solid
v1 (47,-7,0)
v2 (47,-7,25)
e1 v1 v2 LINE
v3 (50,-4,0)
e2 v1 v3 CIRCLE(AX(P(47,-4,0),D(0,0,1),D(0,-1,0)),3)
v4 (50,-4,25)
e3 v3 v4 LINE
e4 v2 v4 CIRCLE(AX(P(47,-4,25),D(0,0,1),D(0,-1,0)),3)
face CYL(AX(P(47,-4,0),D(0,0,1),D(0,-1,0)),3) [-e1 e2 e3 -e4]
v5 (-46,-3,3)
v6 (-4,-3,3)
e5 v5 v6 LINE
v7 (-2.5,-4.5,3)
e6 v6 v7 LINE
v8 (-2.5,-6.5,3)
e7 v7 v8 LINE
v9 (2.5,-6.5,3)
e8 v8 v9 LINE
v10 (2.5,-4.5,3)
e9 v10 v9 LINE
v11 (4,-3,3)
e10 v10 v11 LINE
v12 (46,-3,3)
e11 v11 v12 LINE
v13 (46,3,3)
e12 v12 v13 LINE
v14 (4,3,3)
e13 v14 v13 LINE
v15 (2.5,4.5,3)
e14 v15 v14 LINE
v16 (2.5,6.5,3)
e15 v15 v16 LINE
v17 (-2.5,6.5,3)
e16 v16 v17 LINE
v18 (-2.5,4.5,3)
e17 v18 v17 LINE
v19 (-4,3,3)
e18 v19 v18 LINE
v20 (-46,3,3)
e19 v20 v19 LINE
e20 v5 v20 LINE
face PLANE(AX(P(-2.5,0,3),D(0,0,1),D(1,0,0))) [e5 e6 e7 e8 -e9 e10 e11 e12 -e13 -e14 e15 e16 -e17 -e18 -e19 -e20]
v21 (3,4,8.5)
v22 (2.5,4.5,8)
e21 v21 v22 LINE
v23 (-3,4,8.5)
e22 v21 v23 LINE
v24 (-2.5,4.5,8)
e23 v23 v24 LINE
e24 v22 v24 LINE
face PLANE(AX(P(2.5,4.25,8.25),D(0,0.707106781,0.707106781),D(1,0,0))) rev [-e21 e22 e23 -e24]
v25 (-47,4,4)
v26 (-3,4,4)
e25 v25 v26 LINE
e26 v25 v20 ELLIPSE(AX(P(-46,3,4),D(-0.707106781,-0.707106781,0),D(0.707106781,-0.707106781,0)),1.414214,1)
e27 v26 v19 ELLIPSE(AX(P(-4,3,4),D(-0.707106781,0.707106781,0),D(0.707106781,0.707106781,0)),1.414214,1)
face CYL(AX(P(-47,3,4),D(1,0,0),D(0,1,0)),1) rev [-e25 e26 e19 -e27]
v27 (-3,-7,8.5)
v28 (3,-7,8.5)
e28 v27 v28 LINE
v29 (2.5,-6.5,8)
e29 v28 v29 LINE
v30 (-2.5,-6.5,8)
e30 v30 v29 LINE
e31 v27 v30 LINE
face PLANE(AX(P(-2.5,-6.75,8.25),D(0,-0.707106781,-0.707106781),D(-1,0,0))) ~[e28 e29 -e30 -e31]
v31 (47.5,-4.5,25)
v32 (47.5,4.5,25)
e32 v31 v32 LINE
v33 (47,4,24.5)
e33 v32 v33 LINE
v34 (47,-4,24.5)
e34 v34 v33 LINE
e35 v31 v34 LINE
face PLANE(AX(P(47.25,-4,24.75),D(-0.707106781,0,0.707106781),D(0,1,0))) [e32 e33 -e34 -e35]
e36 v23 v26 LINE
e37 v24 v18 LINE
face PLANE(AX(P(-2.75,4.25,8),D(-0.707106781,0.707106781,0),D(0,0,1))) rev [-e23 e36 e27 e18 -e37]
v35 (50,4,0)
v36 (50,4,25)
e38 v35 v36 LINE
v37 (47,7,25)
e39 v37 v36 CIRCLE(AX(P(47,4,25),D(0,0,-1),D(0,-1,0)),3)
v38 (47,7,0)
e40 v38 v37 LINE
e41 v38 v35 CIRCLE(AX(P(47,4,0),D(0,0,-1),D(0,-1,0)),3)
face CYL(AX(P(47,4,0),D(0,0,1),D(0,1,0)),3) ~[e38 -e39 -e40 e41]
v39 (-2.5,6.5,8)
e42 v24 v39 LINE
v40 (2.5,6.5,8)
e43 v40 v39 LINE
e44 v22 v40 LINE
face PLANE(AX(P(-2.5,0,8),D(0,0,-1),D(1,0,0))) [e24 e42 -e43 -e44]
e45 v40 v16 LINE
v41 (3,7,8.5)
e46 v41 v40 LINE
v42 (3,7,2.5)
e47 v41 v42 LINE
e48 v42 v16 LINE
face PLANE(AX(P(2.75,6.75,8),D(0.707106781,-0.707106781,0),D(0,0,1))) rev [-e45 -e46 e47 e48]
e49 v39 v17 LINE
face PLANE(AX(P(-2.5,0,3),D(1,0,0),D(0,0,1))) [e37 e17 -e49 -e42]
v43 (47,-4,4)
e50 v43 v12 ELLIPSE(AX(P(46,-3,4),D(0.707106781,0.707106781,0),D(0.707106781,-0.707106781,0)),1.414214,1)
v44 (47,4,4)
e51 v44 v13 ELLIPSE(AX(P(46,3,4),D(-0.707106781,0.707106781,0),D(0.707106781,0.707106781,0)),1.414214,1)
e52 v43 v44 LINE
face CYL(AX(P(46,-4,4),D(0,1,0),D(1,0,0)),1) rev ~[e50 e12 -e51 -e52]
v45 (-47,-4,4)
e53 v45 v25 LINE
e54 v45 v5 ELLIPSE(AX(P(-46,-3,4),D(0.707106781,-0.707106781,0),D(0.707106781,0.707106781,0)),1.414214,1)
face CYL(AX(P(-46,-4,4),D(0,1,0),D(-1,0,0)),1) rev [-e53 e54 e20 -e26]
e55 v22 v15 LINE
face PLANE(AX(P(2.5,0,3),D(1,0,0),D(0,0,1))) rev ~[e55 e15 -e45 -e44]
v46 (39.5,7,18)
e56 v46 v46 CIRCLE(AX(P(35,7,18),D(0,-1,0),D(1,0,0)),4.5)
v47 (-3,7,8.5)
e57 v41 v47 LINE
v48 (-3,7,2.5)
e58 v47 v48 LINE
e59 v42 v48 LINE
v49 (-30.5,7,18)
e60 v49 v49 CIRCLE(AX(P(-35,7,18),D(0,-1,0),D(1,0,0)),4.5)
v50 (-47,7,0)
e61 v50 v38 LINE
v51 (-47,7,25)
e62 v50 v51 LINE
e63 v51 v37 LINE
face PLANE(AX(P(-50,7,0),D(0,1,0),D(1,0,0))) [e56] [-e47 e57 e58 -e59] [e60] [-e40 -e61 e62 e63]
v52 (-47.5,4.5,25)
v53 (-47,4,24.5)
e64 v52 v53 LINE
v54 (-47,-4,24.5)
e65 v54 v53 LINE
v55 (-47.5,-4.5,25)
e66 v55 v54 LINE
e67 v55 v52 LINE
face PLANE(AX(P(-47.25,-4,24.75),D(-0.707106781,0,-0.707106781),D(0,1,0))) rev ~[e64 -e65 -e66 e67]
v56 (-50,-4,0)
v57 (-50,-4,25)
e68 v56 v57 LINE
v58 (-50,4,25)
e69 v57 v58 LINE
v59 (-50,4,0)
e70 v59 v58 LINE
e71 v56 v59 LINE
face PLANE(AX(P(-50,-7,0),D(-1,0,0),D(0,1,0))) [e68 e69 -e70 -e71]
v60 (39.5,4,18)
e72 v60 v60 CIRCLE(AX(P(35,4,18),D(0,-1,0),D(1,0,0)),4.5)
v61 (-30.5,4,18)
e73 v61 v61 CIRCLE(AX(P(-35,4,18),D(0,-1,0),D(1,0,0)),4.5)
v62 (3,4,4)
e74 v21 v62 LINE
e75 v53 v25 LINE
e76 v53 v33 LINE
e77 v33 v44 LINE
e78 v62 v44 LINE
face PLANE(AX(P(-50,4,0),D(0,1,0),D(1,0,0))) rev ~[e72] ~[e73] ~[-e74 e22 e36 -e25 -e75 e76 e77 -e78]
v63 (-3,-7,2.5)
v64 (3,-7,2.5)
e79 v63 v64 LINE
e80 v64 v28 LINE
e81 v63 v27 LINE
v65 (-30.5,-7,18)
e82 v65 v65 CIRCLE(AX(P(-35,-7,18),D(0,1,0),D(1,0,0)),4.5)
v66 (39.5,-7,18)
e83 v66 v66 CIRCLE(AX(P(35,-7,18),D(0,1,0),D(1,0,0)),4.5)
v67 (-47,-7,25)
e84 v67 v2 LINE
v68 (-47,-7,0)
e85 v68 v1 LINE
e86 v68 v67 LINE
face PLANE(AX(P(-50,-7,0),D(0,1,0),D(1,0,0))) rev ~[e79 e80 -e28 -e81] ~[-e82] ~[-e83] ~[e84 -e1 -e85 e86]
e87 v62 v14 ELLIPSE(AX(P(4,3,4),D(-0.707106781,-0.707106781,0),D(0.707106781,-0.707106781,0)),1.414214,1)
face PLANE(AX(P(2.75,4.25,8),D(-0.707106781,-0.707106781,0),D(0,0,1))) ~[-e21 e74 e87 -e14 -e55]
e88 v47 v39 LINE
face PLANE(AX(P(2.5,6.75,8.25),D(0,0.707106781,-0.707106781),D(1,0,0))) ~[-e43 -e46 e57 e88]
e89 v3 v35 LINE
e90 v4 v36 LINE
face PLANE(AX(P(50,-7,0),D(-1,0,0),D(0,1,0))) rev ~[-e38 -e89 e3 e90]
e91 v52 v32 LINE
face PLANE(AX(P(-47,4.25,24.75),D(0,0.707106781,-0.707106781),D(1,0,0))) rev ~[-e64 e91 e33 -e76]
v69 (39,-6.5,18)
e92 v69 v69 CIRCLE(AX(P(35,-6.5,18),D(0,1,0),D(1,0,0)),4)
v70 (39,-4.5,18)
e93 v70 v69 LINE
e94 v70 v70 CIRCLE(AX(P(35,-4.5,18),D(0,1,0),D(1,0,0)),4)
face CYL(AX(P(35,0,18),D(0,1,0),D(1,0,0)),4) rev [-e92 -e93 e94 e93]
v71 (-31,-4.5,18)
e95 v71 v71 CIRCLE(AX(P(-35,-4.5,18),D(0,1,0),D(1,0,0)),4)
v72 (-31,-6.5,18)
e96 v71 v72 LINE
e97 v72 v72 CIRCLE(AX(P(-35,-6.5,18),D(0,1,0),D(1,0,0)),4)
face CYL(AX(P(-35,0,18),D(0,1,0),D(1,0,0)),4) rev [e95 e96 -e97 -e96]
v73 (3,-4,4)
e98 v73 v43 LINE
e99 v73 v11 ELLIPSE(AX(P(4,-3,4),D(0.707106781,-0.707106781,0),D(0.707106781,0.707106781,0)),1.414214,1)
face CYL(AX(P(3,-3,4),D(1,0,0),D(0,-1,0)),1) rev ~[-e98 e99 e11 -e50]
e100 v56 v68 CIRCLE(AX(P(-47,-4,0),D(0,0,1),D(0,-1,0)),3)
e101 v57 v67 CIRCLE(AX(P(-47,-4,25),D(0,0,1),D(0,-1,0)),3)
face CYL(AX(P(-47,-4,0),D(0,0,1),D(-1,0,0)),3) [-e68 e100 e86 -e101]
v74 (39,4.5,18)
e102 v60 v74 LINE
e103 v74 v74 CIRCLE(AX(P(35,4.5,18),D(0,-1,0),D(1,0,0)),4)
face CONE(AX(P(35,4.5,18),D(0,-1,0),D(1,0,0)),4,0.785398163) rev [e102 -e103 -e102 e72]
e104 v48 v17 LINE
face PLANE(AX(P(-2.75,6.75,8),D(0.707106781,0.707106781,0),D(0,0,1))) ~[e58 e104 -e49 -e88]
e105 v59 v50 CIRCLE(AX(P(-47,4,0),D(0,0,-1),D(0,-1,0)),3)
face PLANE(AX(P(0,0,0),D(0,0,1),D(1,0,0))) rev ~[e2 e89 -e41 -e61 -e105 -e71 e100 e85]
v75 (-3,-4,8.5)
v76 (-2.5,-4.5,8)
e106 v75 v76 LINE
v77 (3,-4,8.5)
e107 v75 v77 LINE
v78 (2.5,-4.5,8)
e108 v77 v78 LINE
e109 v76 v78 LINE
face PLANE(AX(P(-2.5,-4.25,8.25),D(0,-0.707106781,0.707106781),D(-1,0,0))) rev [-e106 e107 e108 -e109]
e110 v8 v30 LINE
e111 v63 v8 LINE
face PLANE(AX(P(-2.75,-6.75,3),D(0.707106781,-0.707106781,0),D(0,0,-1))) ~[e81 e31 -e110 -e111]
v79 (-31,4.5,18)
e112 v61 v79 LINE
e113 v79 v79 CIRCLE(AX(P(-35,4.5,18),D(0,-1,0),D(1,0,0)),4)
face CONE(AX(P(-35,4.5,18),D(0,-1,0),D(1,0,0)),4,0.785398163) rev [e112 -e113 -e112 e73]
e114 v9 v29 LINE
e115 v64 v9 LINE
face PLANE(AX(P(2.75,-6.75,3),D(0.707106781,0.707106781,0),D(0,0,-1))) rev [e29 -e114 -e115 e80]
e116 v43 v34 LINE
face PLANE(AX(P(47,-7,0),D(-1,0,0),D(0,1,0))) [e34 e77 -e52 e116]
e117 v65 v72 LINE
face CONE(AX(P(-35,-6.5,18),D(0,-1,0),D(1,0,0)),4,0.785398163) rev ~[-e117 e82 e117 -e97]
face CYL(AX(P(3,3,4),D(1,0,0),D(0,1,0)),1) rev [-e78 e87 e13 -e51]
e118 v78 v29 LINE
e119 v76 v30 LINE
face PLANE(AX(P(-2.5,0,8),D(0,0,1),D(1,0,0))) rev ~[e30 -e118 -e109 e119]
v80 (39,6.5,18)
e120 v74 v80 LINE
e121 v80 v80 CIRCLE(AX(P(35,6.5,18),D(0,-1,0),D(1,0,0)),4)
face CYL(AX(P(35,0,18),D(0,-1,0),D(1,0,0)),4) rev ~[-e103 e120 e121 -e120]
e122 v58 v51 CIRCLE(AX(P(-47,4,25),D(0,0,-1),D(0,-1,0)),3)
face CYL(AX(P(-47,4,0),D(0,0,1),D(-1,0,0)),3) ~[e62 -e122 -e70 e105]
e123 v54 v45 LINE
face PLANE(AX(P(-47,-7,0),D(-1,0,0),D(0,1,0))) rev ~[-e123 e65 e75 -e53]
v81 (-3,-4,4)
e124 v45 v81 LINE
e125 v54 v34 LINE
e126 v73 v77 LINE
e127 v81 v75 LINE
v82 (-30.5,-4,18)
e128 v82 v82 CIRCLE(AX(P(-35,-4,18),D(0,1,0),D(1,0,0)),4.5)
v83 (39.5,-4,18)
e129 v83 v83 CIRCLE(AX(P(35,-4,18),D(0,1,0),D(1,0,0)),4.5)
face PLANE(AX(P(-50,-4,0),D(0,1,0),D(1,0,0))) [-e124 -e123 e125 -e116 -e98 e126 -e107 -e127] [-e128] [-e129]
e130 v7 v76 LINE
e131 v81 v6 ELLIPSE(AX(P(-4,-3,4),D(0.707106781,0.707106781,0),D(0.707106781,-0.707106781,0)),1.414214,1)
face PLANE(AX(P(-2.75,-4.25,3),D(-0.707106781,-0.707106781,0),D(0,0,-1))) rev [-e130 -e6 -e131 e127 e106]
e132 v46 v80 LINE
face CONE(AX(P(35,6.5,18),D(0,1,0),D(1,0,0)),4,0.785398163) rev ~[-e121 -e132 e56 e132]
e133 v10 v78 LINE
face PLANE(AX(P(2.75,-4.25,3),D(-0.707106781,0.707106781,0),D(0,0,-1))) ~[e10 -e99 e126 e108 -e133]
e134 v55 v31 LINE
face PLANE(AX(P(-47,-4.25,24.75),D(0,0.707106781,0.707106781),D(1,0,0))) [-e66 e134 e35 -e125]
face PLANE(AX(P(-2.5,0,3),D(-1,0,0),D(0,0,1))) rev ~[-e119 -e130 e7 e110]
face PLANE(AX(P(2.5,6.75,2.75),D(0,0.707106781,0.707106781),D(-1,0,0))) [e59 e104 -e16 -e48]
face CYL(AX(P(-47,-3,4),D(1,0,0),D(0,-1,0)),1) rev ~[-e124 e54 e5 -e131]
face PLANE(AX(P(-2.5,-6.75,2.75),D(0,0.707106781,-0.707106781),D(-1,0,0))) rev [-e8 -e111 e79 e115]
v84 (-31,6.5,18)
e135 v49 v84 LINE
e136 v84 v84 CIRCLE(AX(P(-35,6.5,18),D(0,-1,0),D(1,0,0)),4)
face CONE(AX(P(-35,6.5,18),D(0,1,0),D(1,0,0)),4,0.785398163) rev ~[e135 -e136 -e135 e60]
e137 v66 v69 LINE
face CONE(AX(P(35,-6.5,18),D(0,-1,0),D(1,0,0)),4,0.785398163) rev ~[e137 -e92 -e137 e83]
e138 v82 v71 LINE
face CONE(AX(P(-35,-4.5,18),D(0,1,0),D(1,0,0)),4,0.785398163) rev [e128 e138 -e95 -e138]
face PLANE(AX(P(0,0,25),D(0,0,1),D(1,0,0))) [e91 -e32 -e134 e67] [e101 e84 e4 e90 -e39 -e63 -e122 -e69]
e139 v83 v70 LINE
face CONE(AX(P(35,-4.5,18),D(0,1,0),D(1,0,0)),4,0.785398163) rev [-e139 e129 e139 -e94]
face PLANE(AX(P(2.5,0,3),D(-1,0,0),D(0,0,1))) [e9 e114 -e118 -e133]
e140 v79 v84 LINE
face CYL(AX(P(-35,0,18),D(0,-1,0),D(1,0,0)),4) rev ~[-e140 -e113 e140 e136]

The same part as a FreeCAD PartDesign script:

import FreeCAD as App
import Part
import Sketcher
from FreeCAD import Vector
Q = App.Units.Quantity


def edges_at(feature, points):
    """Names of the edges that pass closest to the given points."""
    edges = feature.Shape.Edges
    near = lambda p: min(range(len(edges)), key=lambda i: edges[i].distToShape(Part.Vertex(*p))[0])
    return sorted({f"Edge{near(p) + 1}" for p in points})


def faces_at(feature, points):
    """Names of the faces that lie closest to the given points."""
    faces = feature.Shape.Faces
    near = lambda p: min(range(len(faces)), key=lambda i: faces[i].distToShape(Part.Vertex(*p))[0])
    return sorted({f"Face{near(p) + 1}" for p in points})

doc = App.newDocument("Part")
body = doc.addObject("PartDesign::Body", "Body")

# Sketch on XY plane
sketch1 = body.newObject("Sketcher::SketchObject", "Sketch")
sketch1.AttachmentSupport = (doc.getObject("XY_Plane"), [""])
sketch1.MapMode = "FlatFace"
sketch1.addGeometry(Part.LineSegment(Vector(-50, 7, 0), Vector(-50, -7, 0)), False)
sketch1.addGeometry(Part.LineSegment(Vector(-50, -7, 0), Vector(50, -7, 0)), False)
sketch1.addGeometry(Part.LineSegment(Vector(50, -7, 0), Vector(50, 7, 0)), False)
sketch1.addGeometry(Part.LineSegment(Vector(50, 7, 0), Vector(-50, 7, 0)), False)
sketch1.addConstraint(Sketcher.Constraint("Coincident", 0, 2, 1, 1))
sketch1.addConstraint(Sketcher.Constraint("Coincident", 1, 2, 2, 1))
sketch1.addConstraint(Sketcher.Constraint("Coincident", 2, 2, 3, 1))
sketch1.addConstraint(Sketcher.Constraint("Coincident", 3, 2, 0, 1))
sketch1.addConstraint(Sketcher.Constraint("Vertical", 0))
sketch1.addConstraint(Sketcher.Constraint("Horizontal", 1))
sketch1.addConstraint(Sketcher.Constraint("Vertical", 2))
sketch1.addConstraint(Sketcher.Constraint("Horizontal", 3))
sketch1.addConstraint(Sketcher.Constraint("Symmetric", 0, 2, 2, 2, -1, 1))
sketch1.addConstraint(Sketcher.Constraint("DistanceX", 1, 1, 1, 2, Q("100 mm")))
sketch1.addConstraint(Sketcher.Constraint("DistanceY", 0, 2, 0, 1, Q("14 mm")))
pad1 = body.newObject("PartDesign::Pad", "Pad")
pad1.Profile = sketch1
pad1.Length = 25
doc.recompute()

thickness = body.newObject("PartDesign::Thickness", "Thickness")
thickness.Base = (pad1, faces_at(pad1, [(0, 0, 25)]))
thickness.Value = 3
thickness.Reversed = True
thickness.Join = "Arc"

# Sketch on XZ plane
sketch2 = body.newObject("Sketcher::SketchObject", "Sketch001")
sketch2.AttachmentSupport = (doc.getObject("XZ_Plane"), [""])
sketch2.MapMode = "FlatFace"
sketch2.addGeometry(Part.Circle(Vector(-35, 18, 0), Vector(0, 0, 1), 4), False)
sketch2.addGeometry(Part.Circle(Vector(35, 18, 0), Vector(0, 0, 1), 4), False)
sketch2.addGeometry(Part.LineSegment(Vector(-2.5, 8, 0), Vector(-2.5, 3, 0)), False)
sketch2.addGeometry(Part.LineSegment(Vector(-2.5, 3, 0), Vector(2.5, 3, 0)), False)
sketch2.addGeometry(Part.LineSegment(Vector(2.5, 3, 0), Vector(2.5, 8, 0)), False)
sketch2.addGeometry(Part.LineSegment(Vector(2.5, 8, 0), Vector(-2.5, 8, 0)), False)
sketch2.addConstraint(Sketcher.Constraint("Coincident", 2, 2, 3, 1))
sketch2.addConstraint(Sketcher.Constraint("Coincident", 3, 2, 4, 1))
sketch2.addConstraint(Sketcher.Constraint("Coincident", 4, 2, 5, 1))
sketch2.addConstraint(Sketcher.Constraint("Coincident", 5, 2, 2, 1))
sketch2.addConstraint(Sketcher.Constraint("Vertical", 2))
sketch2.addConstraint(Sketcher.Constraint("Horizontal", 3))
sketch2.addConstraint(Sketcher.Constraint("Vertical", 4))
sketch2.addConstraint(Sketcher.Constraint("Horizontal", 5))
sketch2.addConstraint(Sketcher.Constraint("Equal", 0, 1))
sketch2.addConstraint(Sketcher.Constraint("Symmetric", 0, 3, 1, 3, -2))
sketch2.addConstraint(Sketcher.Constraint("Equal", 5, 2))
sketch2.addConstraint(Sketcher.Constraint("Diameter", 0, Q("8 mm")))
sketch2.addConstraint(Sketcher.Constraint("DistanceX", 3, 1, 3, 2, Q("5 mm")))
sketch2.addConstraint(Sketcher.Constraint("DistanceX", 0, 3, -1, 1, Q("35 mm")))
sketch2.addConstraint(Sketcher.Constraint("DistanceY", -1, 1, 0, 3, Q("18 mm")))
sketch2.addConstraint(Sketcher.Constraint("DistanceY", -1, 1, 2, 2, Q("3 mm")))
sketch2.addConstraint(Sketcher.Constraint("DistanceX", 2, 2, -1, 1, Q("2.5 mm")))
pocket1 = body.newObject("PartDesign::Pocket", "Pocket")
pocket1.Profile = sketch2
pocket1.Type = "ThroughAll"
pocket1.Midplane = True
doc.recompute()

fillet = body.newObject("PartDesign::Fillet", "Fillet")
fillet.Base = (pocket1, edges_at(pocket1, [
    (-50, -7, 12.5),
    (50, -7, 12.5),
    (50, 7, 12.5),
    (-50, 7, 12.5),
]))
fillet.Radius = 3
doc.recompute()

chamfer = body.newObject("PartDesign::Chamfer", "Chamfer")
chamfer.Base = (fillet, edges_at(fillet, [
    (0, 4, 25),
    (0, -4, 25),
    (-47, 0, 25),
    (47, 0, 25),
    (31, 7, 18),
    (39, 5.5, 18),
    (31, 4, 18),
    (31, -4, 18),
    (39, -5.5, 18),
    (31, -7, 18),
    (-39, 7, 18),
    (-31, 5.5, 18),
    (-39, 4, 18),
    (-39, -4, 18),
    (-31, -5.5, 18),
    (-39, -7, 18),
    (-2.5, -4, 5.5),
    (0, -4, 8),
    (2.5, -4, 5.5),
    (-2.5, 4, 5.5),
    (0, 4, 8),
    (2.5, 4, 5.5),
    (-2.5, -7, 5.5),
    (0, -7, 8),
    (2.5, -7, 5.5),
    (0, -7, 3),
    (2.5, 7, 5.5),
    (0, 7, 8),
    (-2.5, 7, 5.5),
    (0, 7, 3),
]))
chamfer.Size = 0.5
doc.recompute()

fillet2 = body.newObject("PartDesign::Fillet", "Fillet001")
fillet2.Base = (chamfer, edges_at(chamfer, [
    (-25, 4, 3),
    (-47, 0, 3),
    (-25, -4, 3),
    (25, -4, 3),
    (47, 0, 3),
    (25, 4, 3),
]))
fillet2.Radius = 1

doc.recompute()
